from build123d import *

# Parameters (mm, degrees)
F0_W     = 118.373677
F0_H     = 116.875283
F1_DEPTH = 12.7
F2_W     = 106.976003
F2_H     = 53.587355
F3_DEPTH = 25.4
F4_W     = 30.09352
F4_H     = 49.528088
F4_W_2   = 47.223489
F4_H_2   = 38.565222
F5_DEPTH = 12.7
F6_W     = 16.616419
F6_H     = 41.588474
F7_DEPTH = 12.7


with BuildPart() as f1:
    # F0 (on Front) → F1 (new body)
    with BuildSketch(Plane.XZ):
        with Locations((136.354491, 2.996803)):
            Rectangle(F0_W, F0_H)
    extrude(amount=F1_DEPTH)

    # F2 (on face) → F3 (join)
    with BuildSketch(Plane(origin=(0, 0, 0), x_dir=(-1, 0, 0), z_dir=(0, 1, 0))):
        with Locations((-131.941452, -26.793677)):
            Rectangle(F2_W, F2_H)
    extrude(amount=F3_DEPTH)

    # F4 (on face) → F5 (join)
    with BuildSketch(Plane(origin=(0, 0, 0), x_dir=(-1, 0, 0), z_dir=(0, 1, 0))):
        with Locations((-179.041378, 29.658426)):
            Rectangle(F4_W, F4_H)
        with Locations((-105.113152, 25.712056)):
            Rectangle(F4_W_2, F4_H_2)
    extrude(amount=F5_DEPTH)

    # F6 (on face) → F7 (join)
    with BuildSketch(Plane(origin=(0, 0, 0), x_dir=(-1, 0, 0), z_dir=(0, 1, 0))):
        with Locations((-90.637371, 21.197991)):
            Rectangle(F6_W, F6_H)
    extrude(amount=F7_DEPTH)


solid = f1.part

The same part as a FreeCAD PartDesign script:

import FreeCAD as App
import Part
import Sketcher

V = App.Vector

doc = App.newDocument("Part")
params = doc.addObject("Spreadsheet::Sheet", "Params")
for row, (alias, value) in enumerate([
    ("pad1_length", "0.5 in"),
    ("pad2_length", "1 in"),
    ("pad3_length", "0.5 in"),
    ("pad4_length", "0.5 in"),
], start=1):
    params.set(f"A{row}", alias)
    params.set(f"B{row}", "=" + value)
    params.setAlias(f"B{row}", alias)

body = doc.addObject("PartDesign::Body", "Body")

# Sketch on XZ plane
sketch1 = doc.addObject("Sketcher::SketchObject", "Sketch")
body.addObject(sketch1)
sketch1.AttachmentSupport = (doc.XZ_Plane, [""])
sketch1.MapMode = "FlatFace"
sketch1.addGeometry(Part.LineSegment(V(77, 61, 0), V(77, -55, 0)), False)
sketch1.addGeometry(Part.LineSegment(V(77, -55, 0), V(196, -55, 0)), False)
sketch1.addGeometry(Part.LineSegment(V(196, -55, 0), V(196, 61, 0)), False)
sketch1.addGeometry(Part.LineSegment(V(196, 61, 0), V(77, 61, 0)), False)
sketch1.addConstraint(Sketcher.Constraint("Coincident", 0, 2, 1, 1))
sketch1.addConstraint(Sketcher.Constraint("Coincident", 1, 2, 2, 1))
sketch1.addConstraint(Sketcher.Constraint("Coincident", 2, 2, 3, 1))
sketch1.addConstraint(Sketcher.Constraint("Coincident", 3, 2, 0, 1))
sketch1.addConstraint(Sketcher.Constraint("Vertical", 0))
sketch1.addConstraint(Sketcher.Constraint("Horizontal", 1))
sketch1.addConstraint(Sketcher.Constraint("Vertical", 2))
sketch1.addConstraint(Sketcher.Constraint("Horizontal", 3))
sketch1.addConstraint(Sketcher.Constraint("DistanceX", 1, 1, 1, 2, 118.373677))
sketch1.addConstraint(Sketcher.Constraint("DistanceY", 0, 2, 0, 1, 116.875283))
sketch1.addConstraint(Sketcher.Constraint("DistanceY", 0, 2, -1, 1, 55.440838))
sketch1.addConstraint(Sketcher.Constraint("DistanceX", -1, 1, 1, 2, 195.541329))
pad1 = doc.addObject("PartDesign::Pad", "Pad")
body.addObject(pad1)
pad1.Profile = sketch1
pad1.setExpression("Length", "Params.pad1_length")

# Sketch on XZ plane
sketch2 = doc.addObject("Sketcher::SketchObject", "Sketch001")
body.addObject(sketch2)
sketch2.AttachmentSupport = (doc.XZ_Plane, [""])
sketch2.MapMode = "FlatFace"
sketch2.addGeometry(Part.LineSegment(V(185, 0, 0), V(185, -54, 0)), False)
sketch2.addGeometry(Part.LineSegment(V(185, -54, 0), V(78, -54, 0)), False)
sketch2.addGeometry(Part.LineSegment(V(78, -54, 0), V(78, 0, 0)), False)
sketch2.addGeometry(Part.LineSegment(V(78, 0, 0), V(185, 0, 0)), False)
sketch2.addConstraint(Sketcher.Constraint("Coincident", 0, 2, 1, 1))
sketch2.addConstraint(Sketcher.Constraint("Coincident", 1, 2, 2, 1))
sketch2.addConstraint(Sketcher.Constraint("Coincident", 2, 2, 3, 1))
sketch2.addConstraint(Sketcher.Constraint("Coincident", 3, 2, 0, 1))
sketch2.addConstraint(Sketcher.Constraint("Vertical", 0))
sketch2.addConstraint(Sketcher.Constraint("Horizontal", 1))
sketch2.addConstraint(Sketcher.Constraint("Vertical", 2))
sketch2.addConstraint(Sketcher.Constraint("Horizontal", 3))
sketch2.addConstraint(Sketcher.Constraint("PointOnObject", 2, 2, -1))
sketch2.addConstraint(Sketcher.Constraint("DistanceX", 1, 2, 1, 1, 106.976003))
sketch2.addConstraint(Sketcher.Constraint("DistanceY", 0, 2, 0, 1, 53.587355))
sketch2.addConstraint(Sketcher.Constraint("DistanceX", -1, 1, 1, 2, 78.453451))
pad2 = doc.addObject("PartDesign::Pad", "Pad001")
body.addObject(pad2)
pad2.Profile = sketch2
pad2.setExpression("Length", "Params.pad2_length")
pad2.Reversed = True

# Sketch on XZ plane
sketch3 = doc.addObject("Sketcher::SketchObject", "Sketch002")
body.addObject(sketch3)
sketch3.AttachmentSupport = (doc.XZ_Plane, [""])
sketch3.MapMode = "FlatFace"
sketch3.addGeometry(Part.LineSegment(V(194, 54, 0), V(194, 5, 0)), False)
sketch3.addGeometry(Part.LineSegment(V(194, 5, 0), V(164, 5, 0)), False)
sketch3.addGeometry(Part.LineSegment(V(164, 5, 0), V(164, 54, 0)), False)
sketch3.addGeometry(Part.LineSegment(V(164, 54, 0), V(194, 54, 0)), False)
sketch3.addGeometry(Part.LineSegment(V(129, 45, 0), V(129, 6, 0)), False)
sketch3.addGeometry(Part.LineSegment(V(129, 6, 0), V(82, 6, 0)), False)
sketch3.addGeometry(Part.LineSegment(V(82, 6, 0), V(82, 45, 0)), False)
sketch3.addGeometry(Part.LineSegment(V(82, 45, 0), V(129, 45, 0)), False)
sketch3.addConstraint(Sketcher.Constraint("Coincident", 0, 2, 1, 1))
sketch3.addConstraint(Sketcher.Constraint("Coincident", 1, 2, 2, 1))
sketch3.addConstraint(Sketcher.Constraint("Coincident", 2, 2, 3, 1))
sketch3.addConstraint(Sketcher.Constraint("Coincident", 3, 2, 0, 1))
sketch3.addConstraint(Sketcher.Constraint("Coincident", 4, 2, 5, 1))
sketch3.addConstraint(Sketcher.Constraint("Coincident", 5, 2, 6, 1))
sketch3.addConstraint(Sketcher.Constraint("Coincident", 6, 2, 7, 1))
sketch3.addConstraint(Sketcher.Constraint("Coincident", 7, 2, 4, 1))
sketch3.addConstraint(Sketcher.Constraint("Vertical", 0))
sketch3.addConstraint(Sketcher.Constraint("Horizontal", 1))
sketch3.addConstraint(Sketcher.Constraint("Vertical", 2))
sketch3.addConstraint(Sketcher.Constraint("Horizontal", 3))
sketch3.addConstraint(Sketcher.Constraint("Vertical", 4))
sketch3.addConstraint(Sketcher.Constraint("Horizontal", 5))
sketch3.addConstraint(Sketcher.Constraint("Vertical", 6))
sketch3.addConstraint(Sketcher.Constraint("Horizontal", 7))
sketch3.addConstraint(Sketcher.Constraint("DistanceX", 1, 2, 1, 1, 30.09352))
sketch3.addConstraint(Sketcher.Constraint("DistanceX", 5, 2, 5, 1, 47.223489))
sketch3.addConstraint(Sketcher.Constraint("DistanceY", 0, 2, 0, 1, 49.528088))
sketch3.addConstraint(Sketcher.Constraint("DistanceY", 4, 2, 4, 1, 38.565222))
sketch3.addConstraint(Sketcher.Constraint("DistanceX", -1, 1, 1, 2, 163.994618))
sketch3.addConstraint(Sketcher.Constraint("DistanceY", -1, 1, 2, 2, 54.42247))
sketch3.addConstraint(Sketcher.Constraint("DistanceX", 4, 2, 1, 2, 35.269722))
sketch3.addConstraint(Sketcher.Constraint("DistanceY", -1, 1, 4, 2, 6.429445))
pad3 = doc.addObject("PartDesign::Pad", "Pad002")
body.addObject(pad3)
pad3.Profile = sketch3
pad3.setExpression("Length", "Params.pad3_length")
pad3.Reversed = True

# Sketch on XZ plane
sketch4 = doc.addObject("Sketcher::SketchObject", "Sketch003")
body.addObject(sketch4)
sketch4.AttachmentSupport = (doc.XZ_Plane, [""])
sketch4.MapMode = "FlatFace"
sketch4.addGeometry(Part.LineSegment(V(99, 42, 0), V(99, 0, 0)), False)
sketch4.addGeometry(Part.LineSegment(V(99, 0, 0), V(82, 0, 0)), False)
sketch4.addGeometry(Part.LineSegment(V(82, 0, 0), V(82, 42, 0)), False)
sketch4.addGeometry(Part.LineSegment(V(82, 42, 0), V(99, 42, 0)), False)
sketch4.addConstraint(Sketcher.Constraint("Coincident", 0, 2, 1, 1))
sketch4.addConstraint(Sketcher.Constraint("Coincident", 1, 2, 2, 1))
sketch4.addConstraint(Sketcher.Constraint("Coincident", 2, 2, 3, 1))
sketch4.addConstraint(Sketcher.Constraint("Coincident", 3, 2, 0, 1))
sketch4.addConstraint(Sketcher.Constraint("Vertical", 0))
sketch4.addConstraint(Sketcher.Constraint("Horizontal", 1))
sketch4.addConstraint(Sketcher.Constraint("Vertical", 2))
sketch4.addConstraint(Sketcher.Constraint("Horizontal", 3))
sketch4.addConstraint(Sketcher.Constraint("DistanceX", 1, 2, 1, 1, 16.616419))
sketch4.addConstraint(Sketcher.Constraint("DistanceY", 0, 2, 0, 1, 41.588474))
sketch4.addConstraint(Sketcher.Constraint("DistanceX", -1, 1, 0, 2, 98.945581))
sketch4.addConstraint(Sketcher.Constraint("DistanceY", -1, 1, 0, 2, 0.403754))
pad4 = doc.addObject("PartDesign::Pad", "Pad003")
body.addObject(pad4)
pad4.Profile = sketch4
pad4.setExpression("Length", "Params.pad4_length")
pad4.Reversed = True

doc.recompute()
